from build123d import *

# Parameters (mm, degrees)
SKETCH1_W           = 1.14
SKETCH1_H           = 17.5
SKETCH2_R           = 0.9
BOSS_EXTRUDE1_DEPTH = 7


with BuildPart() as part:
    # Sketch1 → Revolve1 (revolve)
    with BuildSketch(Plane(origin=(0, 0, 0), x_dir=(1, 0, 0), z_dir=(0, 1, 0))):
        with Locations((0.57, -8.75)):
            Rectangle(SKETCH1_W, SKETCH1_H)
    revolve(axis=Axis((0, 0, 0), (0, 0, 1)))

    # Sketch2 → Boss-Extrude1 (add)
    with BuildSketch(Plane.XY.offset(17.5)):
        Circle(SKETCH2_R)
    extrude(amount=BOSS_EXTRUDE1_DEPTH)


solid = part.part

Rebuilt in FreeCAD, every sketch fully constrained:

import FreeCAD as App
import Part
import Sketcher

V = App.Vector
Q = App.Units.Quantity

doc = App.newDocument("Part")
params = doc.addObject("Spreadsheet::Sheet", "Params")
for row, (alias, value) in enumerate([
    ("sketch1_height", "17.5 mm"),
    ("sketch1_width", "1.14 mm"),
    ("revolution_angle", "360 deg"),
    ("sketch2_diameter", "1.8 mm"),
    ("pad1_length", "7 mm"),
], start=1):
    params.set(f"A{row}", alias)
    params.set(f"B{row}", "=" + value)
    params.setAlias(f"B{row}", alias)

body = doc.addObject("PartDesign::Body", "Body")

sketch1 = body.newObject("Sketcher::SketchObject", "Sketch")
sketch1.AttachmentSupport = (doc.getObject("XZ_Plane"), [""])
sketch1.MapMode = "FlatFace"
sketch1.addGeometry([
    Part.LineSegment(V(0, 0, 0), V(0, 17.5, 0)),
    Part.LineSegment(V(0, 17.5, 0), V(1.1, 17.5, 0)),
    Part.LineSegment(V(1.1, 17.5, 0), V(1.1, 0, 0)),
    Part.LineSegment(V(1.1, 0, 0), V(0, 0, 0)),
], False)
sketch1.addConstraint([
    Sketcher.Constraint("Coincident", 0, 2, 1, 1),
    Sketcher.Constraint("Coincident", 1, 2, 2, 1),
    Sketcher.Constraint("Coincident", 2, 2, 3, 1),
    Sketcher.Constraint("Coincident", 3, 2, 0, 1),
    Sketcher.Constraint("Vertical", 0),
    Sketcher.Constraint("Horizontal", 1),
    Sketcher.Constraint("Vertical", 2),
    Sketcher.Constraint("Horizontal", 3),
    Sketcher.Constraint("Coincident", 3, 2, -1, 1),
    Sketcher.Constraint("DistanceY", 0, 1, 0, 2, Q("17.5 mm")),
    Sketcher.Constraint("DistanceX", 1, 1, 1, 2, Q("1.14 mm")),
])
sketch1.setExpression("Constraints[9]", "Params.sketch1_height")
sketch1.setExpression("Constraints[10]", "Params.sketch1_width")
revolution = body.newObject("PartDesign::Revolution", "Revolution")
revolution.Profile = sketch1
revolution.ReferenceAxis = (sketch1, ["V_Axis"])
revolution.setExpression("Angle", "Params.revolution_angle")

sketch2 = body.newObject("Sketcher::SketchObject", "Sketch001")
sketch2.AttachmentSupport = (doc.getObject("XY_Plane"), [""])
sketch2.MapMode = "FlatFace"
sketch2.AttachmentOffset = App.Placement(V(0, 0, 17.5), App.Rotation())
sketch2.addGeometry(Part.Circle(V(0, 0, 0), V(0, 0, 1), 0.9), False)
sketch2.addConstraint([
    Sketcher.Constraint("Coincident", 0, 3, -1, 1),
    Sketcher.Constraint("Diameter", 0, Q("1.8 mm")),
])
sketch2.setExpression("Constraints[1]", "Params.sketch2_diameter")
pad1 = body.newObject("PartDesign::Pad", "Pad")
pad1.Profile = sketch2
pad1.setExpression("Length", "Params.pad1_length")

doc.recompute()
